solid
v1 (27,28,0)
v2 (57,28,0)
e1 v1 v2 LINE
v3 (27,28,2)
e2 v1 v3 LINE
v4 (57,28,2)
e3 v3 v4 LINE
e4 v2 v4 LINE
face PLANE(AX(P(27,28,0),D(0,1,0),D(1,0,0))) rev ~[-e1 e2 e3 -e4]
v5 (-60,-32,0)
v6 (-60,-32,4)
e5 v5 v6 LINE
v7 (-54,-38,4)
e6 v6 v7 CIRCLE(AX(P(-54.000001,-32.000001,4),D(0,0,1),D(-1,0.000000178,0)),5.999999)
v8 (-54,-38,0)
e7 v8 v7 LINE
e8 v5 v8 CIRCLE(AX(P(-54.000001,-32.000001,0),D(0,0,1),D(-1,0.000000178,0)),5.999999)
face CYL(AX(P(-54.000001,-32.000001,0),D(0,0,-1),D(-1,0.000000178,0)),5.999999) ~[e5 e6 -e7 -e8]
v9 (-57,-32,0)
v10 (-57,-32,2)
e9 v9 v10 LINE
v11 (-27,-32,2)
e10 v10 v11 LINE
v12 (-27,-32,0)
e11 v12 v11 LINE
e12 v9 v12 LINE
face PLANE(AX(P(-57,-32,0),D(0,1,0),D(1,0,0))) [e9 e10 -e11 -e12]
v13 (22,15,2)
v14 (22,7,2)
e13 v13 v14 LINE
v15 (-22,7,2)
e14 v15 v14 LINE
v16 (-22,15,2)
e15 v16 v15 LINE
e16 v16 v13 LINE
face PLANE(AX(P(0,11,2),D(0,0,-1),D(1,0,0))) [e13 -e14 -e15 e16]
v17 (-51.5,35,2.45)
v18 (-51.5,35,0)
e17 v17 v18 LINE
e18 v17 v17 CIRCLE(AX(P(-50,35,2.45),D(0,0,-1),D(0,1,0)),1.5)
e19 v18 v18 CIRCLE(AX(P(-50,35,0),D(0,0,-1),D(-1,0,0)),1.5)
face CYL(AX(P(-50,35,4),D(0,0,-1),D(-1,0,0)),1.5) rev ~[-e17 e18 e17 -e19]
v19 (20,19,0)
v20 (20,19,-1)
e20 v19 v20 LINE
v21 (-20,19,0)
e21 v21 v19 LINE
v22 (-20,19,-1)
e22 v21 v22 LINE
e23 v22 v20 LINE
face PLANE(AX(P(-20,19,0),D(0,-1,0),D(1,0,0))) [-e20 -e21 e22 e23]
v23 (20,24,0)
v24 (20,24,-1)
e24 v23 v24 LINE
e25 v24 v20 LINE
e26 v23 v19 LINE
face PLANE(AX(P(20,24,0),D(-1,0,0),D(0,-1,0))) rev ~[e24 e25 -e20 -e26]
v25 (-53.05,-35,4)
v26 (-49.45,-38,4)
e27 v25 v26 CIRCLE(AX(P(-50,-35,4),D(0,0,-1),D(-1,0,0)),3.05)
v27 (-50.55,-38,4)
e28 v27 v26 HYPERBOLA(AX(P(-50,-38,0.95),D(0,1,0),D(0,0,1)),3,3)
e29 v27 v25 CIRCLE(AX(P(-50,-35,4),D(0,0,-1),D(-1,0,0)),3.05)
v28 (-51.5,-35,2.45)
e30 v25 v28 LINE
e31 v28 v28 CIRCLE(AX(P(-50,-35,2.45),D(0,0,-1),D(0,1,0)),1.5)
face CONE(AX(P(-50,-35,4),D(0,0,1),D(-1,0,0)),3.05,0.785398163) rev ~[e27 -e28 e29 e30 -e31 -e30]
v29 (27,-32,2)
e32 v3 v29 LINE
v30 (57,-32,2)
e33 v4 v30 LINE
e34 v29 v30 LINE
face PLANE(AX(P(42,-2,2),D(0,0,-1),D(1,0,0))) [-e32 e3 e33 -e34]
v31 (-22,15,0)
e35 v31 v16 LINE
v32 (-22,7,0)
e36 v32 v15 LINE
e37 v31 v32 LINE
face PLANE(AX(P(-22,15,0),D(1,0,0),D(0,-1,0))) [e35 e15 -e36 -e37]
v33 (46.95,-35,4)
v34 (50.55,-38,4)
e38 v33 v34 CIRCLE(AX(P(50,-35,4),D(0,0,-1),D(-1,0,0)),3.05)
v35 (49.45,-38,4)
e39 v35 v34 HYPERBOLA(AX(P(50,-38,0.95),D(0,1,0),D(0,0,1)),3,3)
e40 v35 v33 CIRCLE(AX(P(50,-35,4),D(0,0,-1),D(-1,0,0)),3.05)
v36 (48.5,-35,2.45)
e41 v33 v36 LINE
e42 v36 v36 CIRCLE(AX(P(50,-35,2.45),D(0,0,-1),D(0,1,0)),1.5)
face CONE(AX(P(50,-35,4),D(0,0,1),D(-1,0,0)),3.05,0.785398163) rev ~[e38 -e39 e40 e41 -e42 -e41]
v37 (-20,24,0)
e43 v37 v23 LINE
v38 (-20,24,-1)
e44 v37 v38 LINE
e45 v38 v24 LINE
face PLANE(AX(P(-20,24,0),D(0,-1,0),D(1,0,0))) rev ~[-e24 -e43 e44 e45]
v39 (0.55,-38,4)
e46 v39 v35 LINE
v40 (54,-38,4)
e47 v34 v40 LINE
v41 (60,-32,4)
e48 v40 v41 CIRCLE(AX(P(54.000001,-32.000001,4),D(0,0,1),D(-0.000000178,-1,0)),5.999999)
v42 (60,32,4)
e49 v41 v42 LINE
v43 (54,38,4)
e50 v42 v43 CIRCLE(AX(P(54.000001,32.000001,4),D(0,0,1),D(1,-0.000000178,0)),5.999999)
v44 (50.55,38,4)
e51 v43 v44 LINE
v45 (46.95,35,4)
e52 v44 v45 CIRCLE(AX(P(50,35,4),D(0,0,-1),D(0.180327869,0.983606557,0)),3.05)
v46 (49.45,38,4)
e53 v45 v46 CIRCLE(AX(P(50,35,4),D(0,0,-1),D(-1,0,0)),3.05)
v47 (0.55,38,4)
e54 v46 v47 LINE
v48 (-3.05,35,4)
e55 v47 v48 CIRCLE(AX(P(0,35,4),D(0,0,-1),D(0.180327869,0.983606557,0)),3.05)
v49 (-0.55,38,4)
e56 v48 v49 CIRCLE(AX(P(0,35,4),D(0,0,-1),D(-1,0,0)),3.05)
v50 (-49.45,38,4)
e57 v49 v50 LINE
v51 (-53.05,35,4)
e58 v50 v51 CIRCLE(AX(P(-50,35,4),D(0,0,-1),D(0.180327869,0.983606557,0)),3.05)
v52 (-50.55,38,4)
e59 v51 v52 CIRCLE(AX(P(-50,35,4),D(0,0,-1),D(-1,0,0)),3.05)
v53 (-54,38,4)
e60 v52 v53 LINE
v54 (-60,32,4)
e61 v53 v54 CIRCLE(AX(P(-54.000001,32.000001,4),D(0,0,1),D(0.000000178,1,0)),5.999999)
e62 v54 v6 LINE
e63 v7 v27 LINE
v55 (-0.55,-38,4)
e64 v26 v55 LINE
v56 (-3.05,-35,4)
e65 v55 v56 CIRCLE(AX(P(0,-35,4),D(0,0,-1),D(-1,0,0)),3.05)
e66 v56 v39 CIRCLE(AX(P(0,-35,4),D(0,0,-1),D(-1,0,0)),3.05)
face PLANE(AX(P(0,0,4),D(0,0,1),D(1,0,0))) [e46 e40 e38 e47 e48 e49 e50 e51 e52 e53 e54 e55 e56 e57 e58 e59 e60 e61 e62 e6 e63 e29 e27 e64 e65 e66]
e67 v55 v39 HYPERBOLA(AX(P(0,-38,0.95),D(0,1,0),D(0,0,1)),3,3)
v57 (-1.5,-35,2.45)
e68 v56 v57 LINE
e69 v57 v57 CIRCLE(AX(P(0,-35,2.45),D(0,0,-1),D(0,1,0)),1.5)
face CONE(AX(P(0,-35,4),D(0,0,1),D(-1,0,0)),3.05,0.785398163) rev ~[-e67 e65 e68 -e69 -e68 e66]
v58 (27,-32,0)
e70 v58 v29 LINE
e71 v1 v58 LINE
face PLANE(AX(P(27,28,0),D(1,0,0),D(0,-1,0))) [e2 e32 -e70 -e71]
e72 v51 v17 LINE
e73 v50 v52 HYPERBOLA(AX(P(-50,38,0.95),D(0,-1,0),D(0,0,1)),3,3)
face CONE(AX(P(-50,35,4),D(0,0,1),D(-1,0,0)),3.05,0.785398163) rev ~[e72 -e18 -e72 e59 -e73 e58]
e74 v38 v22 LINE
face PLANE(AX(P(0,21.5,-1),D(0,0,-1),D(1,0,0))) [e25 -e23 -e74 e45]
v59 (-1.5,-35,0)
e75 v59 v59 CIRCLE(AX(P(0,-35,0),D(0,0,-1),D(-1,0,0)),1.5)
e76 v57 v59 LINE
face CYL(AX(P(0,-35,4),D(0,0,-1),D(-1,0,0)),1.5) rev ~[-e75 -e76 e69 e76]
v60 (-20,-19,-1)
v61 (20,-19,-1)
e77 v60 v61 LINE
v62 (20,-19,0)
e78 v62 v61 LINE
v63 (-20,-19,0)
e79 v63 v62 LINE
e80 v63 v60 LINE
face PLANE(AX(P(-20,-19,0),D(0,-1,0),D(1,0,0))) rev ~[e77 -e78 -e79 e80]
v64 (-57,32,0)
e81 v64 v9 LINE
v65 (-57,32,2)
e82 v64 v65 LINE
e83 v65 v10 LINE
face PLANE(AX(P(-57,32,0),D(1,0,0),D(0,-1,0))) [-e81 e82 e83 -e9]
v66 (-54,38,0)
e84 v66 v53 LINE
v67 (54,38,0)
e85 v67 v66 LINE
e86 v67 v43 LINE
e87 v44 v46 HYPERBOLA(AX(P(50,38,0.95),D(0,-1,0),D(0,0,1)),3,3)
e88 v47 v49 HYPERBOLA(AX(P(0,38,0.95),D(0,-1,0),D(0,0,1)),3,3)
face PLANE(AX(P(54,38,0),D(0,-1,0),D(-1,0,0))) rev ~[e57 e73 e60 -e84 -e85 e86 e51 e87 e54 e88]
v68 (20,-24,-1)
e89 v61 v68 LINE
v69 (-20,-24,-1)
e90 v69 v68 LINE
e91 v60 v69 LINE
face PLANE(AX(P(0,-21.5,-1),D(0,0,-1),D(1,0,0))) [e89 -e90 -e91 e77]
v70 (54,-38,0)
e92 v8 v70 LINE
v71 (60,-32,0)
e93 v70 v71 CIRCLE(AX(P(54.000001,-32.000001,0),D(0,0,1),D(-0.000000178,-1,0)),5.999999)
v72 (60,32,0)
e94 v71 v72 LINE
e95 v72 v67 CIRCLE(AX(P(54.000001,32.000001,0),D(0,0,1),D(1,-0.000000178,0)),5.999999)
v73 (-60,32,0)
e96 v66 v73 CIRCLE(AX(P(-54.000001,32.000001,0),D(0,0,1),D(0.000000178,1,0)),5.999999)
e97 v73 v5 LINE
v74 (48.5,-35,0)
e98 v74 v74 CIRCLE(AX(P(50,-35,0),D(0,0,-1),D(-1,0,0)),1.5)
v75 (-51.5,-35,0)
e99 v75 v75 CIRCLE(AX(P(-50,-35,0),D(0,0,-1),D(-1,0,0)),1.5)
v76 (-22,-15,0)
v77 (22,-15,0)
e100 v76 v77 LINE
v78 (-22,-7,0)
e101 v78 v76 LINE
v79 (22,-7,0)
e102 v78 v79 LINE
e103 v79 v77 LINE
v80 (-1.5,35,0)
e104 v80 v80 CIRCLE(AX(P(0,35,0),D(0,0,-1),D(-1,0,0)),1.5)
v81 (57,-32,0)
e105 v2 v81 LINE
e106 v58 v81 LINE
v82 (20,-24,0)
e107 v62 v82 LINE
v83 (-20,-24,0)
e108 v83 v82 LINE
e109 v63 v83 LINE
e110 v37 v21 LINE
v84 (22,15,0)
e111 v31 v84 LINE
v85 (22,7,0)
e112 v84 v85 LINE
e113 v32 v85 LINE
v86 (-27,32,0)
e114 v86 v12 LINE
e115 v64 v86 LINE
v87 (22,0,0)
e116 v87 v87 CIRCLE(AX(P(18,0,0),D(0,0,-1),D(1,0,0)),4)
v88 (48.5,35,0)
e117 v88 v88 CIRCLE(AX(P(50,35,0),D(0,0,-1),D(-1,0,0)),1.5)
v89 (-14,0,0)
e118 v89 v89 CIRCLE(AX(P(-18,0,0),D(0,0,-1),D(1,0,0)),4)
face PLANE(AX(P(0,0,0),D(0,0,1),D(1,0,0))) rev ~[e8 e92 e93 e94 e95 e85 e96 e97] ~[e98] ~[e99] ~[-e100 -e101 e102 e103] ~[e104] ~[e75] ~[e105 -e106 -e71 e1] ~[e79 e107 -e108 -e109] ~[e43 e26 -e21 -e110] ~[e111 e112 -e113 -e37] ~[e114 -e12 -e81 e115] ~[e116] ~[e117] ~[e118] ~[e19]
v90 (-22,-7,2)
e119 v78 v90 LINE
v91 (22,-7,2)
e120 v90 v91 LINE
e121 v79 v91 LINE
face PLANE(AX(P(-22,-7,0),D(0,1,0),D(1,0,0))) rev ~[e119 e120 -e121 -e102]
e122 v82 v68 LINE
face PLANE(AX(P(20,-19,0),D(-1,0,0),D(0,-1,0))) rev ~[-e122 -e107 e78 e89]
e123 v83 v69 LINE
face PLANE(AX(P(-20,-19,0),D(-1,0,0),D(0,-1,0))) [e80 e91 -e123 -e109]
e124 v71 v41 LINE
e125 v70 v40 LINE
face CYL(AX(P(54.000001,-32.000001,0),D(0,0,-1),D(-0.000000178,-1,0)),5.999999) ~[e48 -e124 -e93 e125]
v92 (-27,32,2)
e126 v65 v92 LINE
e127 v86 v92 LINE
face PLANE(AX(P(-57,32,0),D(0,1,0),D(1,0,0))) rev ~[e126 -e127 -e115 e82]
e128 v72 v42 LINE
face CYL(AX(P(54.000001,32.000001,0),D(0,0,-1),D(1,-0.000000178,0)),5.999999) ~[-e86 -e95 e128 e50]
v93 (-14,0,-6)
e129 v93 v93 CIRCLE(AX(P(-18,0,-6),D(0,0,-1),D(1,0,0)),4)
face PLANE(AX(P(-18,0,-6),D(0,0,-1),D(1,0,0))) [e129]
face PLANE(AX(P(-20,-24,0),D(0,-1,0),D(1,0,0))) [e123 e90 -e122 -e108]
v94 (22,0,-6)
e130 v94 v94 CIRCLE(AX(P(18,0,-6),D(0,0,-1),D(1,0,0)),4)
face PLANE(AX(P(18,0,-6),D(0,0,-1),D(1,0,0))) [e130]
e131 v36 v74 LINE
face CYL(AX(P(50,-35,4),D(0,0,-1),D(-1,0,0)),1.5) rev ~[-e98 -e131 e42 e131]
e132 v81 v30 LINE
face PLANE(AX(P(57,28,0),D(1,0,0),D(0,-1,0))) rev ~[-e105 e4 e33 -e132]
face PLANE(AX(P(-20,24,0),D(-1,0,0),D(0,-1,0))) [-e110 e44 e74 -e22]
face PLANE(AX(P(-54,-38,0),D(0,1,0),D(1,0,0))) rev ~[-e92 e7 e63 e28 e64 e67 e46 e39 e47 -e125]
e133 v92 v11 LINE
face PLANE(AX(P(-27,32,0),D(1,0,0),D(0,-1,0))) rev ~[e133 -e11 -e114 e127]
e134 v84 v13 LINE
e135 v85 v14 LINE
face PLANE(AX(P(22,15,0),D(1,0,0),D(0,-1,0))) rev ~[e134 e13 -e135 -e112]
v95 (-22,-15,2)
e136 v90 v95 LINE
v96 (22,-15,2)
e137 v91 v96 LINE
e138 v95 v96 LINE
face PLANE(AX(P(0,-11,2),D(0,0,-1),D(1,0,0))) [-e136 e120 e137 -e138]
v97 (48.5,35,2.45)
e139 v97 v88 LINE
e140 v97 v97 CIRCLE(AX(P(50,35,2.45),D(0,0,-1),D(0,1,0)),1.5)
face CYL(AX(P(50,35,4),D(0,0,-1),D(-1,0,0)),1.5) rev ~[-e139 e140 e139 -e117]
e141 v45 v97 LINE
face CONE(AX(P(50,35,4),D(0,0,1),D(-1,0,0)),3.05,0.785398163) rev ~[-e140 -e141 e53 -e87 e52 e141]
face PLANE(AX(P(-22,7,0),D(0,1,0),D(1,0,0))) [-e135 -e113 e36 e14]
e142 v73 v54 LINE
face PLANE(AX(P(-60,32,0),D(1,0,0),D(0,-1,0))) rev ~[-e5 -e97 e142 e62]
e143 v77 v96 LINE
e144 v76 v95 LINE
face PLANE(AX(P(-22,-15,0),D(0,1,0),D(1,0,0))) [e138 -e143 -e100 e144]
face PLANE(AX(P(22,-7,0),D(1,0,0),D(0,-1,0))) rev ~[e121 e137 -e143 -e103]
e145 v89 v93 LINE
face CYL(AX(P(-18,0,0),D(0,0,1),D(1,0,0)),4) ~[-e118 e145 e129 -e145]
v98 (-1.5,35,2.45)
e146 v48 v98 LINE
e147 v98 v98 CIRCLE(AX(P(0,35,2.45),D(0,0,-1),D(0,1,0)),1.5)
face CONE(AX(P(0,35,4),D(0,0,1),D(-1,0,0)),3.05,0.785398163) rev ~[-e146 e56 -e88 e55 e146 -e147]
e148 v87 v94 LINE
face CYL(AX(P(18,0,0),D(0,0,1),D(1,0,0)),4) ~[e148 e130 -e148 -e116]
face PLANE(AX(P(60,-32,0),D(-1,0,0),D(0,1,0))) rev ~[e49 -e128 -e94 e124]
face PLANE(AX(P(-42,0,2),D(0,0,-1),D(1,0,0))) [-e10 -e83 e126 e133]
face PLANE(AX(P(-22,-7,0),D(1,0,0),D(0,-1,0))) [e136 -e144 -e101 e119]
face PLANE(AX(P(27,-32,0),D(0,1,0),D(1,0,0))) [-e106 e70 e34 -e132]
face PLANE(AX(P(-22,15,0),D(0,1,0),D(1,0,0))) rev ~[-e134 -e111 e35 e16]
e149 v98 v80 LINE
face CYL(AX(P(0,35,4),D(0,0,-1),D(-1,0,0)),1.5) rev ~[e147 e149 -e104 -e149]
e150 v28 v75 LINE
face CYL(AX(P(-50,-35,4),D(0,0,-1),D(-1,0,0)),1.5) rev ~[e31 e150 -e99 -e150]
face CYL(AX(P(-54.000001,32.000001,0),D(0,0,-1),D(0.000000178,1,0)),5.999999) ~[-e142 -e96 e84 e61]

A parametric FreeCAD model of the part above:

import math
import FreeCAD as App
import Part
import Sketcher
from FreeCAD import Vector
Q = App.Units.Quantity


def add_polygon(sketch, points):
    """Adds a closed chain of lines whose ends are joined by coincident constraints."""
    first, n = sketch.GeometryCount, len(points)
    for a, b in zip(points, points[1:] + points[:1]):
        sketch.addGeometry(Part.LineSegment(App.Vector(*a, 0), App.Vector(*b, 0)), False)
    for i in range(n):
        sketch.addConstraint(Sketcher.Constraint("Coincident", first + i, 2, first + (i + 1) % n, 1))

doc = App.newDocument("Part")
body = doc.addObject("PartDesign::Body", "Body")

# Sketch on XY plane
sketch1 = body.newObject("Sketcher::SketchObject", "Sketch")
sketch1.AttachmentSupport = (doc.getObject("XY_Plane"), [""])
sketch1.MapMode = "FlatFace"
sketch1.addGeometry([
    Part.LineSegment(Vector(60, -32, 0), Vector(60, 32, 0)),  # 0
    Part.ArcOfCircle(Part.Circle(Vector(54, 32, 0), Vector(0, 0, 1), 6), math.radians(0), math.radians(90)),  # 1
    Part.LineSegment(Vector(54, 38, 0), Vector(-54, 38, 0)),  # 2
    Part.ArcOfCircle(Part.Circle(Vector(-54, 32, 0), Vector(0, 0, 1), 6), math.radians(90), math.radians(180)),  # 3
    Part.LineSegment(Vector(-60, 32, 0), Vector(-60, -32, 0)),  # 4
    Part.ArcOfCircle(Part.Circle(Vector(-54, -32, 0), Vector(0, 0, 1), 6), math.radians(180), math.radians(270)),  # 5
    Part.LineSegment(Vector(-54, -38, 0), Vector(54, -38, 0)),  # 6
    Part.ArcOfCircle(Part.Circle(Vector(54, -32, 0), Vector(0, 0, 1), 6), math.radians(-90), math.radians(0)),  # 7
], False)
sketch1.addConstraint([
    Sketcher.Constraint("Tangent", 0, 2, 1, 1),
    Sketcher.Constraint("Tangent", 1, 2, 2, 1),
    Sketcher.Constraint("Tangent", 2, 2, 3, 1),
    Sketcher.Constraint("Tangent", 3, 2, 4, 1),
    Sketcher.Constraint("Tangent", 4, 2, 5, 1),
    Sketcher.Constraint("Tangent", 5, 2, 6, 1),
    Sketcher.Constraint("Tangent", 6, 2, 7, 1),
    Sketcher.Constraint("Tangent", 7, 2, 0, 1),
    Sketcher.Constraint("Vertical", 0),
    Sketcher.Constraint("Horizontal", 2),
    Sketcher.Constraint("Vertical", 4),
    Sketcher.Constraint("Horizontal", 6),
    Sketcher.Constraint("Equal", 1, 3),
    Sketcher.Constraint("Equal", 3, 5),
    Sketcher.Constraint("Equal", 5, 7),
    Sketcher.Constraint("Symmetric", 1, 3, 5, 3, -1, 1),
    Sketcher.Constraint("Radius", 1, Q("5.999999 mm")),
    Sketcher.Constraint("DistanceX", 2, 2, 2, 1, Q("108 mm")),
    Sketcher.Constraint("DistanceY", 0, 1, 0, 2, Q("64 mm")),
])
pad1 = body.newObject("PartDesign::Pad", "Pad")
pad1.Profile = sketch1
pad1.Length = 4

# Sketch on XY plane
sketch2 = body.newObject("Sketcher::SketchObject", "Sketch001")
sketch2.AttachmentSupport = (doc.getObject("XY_Plane"), [""])
sketch2.MapMode = "FlatFace"
sketch2.AttachmentOffset = App.Placement(Vector(0, 0, 4), App.Rotation())
sketch2.addGeometry([
    Part.Circle(Vector(0, -35, 0), Vector(0, 0, 1), 1.5),  # 0
    Part.Circle(Vector(0, 35, 0), Vector(0, 0, 1), 1.5),  # 1
    Part.Circle(Vector(50, 35, 0), Vector(0, 0, 1), 1.5),  # 2
    Part.Circle(Vector(-50, 35, 0), Vector(0, 0, 1), 1.5),  # 3
    Part.Circle(Vector(-50, -35, 0), Vector(0, 0, 1), 1.5),  # 4
    Part.Circle(Vector(50, -35, 0), Vector(0, 0, 1), 1.5),  # 5
], False)
sketch2.addConstraint([
    Sketcher.Constraint("Equal", 0, 1),
    Sketcher.Constraint("Equal", 1, 2),
    Sketcher.Constraint("Equal", 2, 3),
    Sketcher.Constraint("Equal", 3, 4),
    Sketcher.Constraint("Equal", 4, 5),
    Sketcher.Constraint("Symmetric", 0, 3, 1, 3, -1, 1),
    Sketcher.Constraint("Symmetric", 2, 3, 4, 3, -1, 1),
    Sketcher.Constraint("Symmetric", 3, 3, 5, 3, -1, 1),
    Sketcher.Constraint("Symmetric", 2, 3, 3, 3, -2),
    Sketcher.Constraint("PointOnObject", 0, 3, -2),
    Sketcher.Constraint("Horizontal", 1, 3, 2, 3),
    Sketcher.Constraint("Diameter", 0, Q("3 mm")),
    Sketcher.Constraint("DistanceY", 0, 3, -1, 1, Q("35 mm")),
    Sketcher.Constraint("DistanceX", -1, 1, 2, 3, Q("50 mm")),
])
doc.recompute()
hole = body.newObject("PartDesign::Hole", "Hole")
hole.Profile = sketch2
hole.ThreadType = "None"
hole.Diameter = 3
hole.DepthType = "Dimension"
hole.Depth = 25
hole.DrillPoint = "Flat"
hole.HoleCutType = "Countersink"
hole.HoleCutDiameter = 6.1
hole.HoleCutCountersinkAngle = 90

# Sketch on XY plane
sketch3 = body.newObject("Sketcher::SketchObject", "Sketch002")
sketch3.AttachmentSupport = (doc.getObject("XY_Plane"), [""])
sketch3.MapMode = "FlatFace"
sketch3.addGeometry([
    Part.Circle(Vector(18, 0, 0), Vector(0, 0, 1), 4),
    Part.Circle(Vector(-18, 0, 0), Vector(0, 0, 1), 4),
], False)
sketch3.addConstraint([
    Sketcher.Constraint("Equal", 0, 1),
    Sketcher.Constraint("Symmetric", 0, 3, 1, 3, -1, 1),
    Sketcher.Constraint("PointOnObject", 0, 3, -1),
    Sketcher.Constraint("Diameter", 0, Q("8 mm")),
    Sketcher.Constraint("DistanceX", -1, 1, 0, 3, Q("18 mm")),
])
pad2 = body.newObject("PartDesign::Pad", "Pad001")
pad2.Profile = sketch3
pad2.Length = 6
pad2.Reversed = True

# Sketch on XY plane
sketch4 = body.newObject("Sketcher::SketchObject", "Sketch003")
sketch4.AttachmentSupport = (doc.getObject("XY_Plane"), [""])
sketch4.MapMode = "FlatFace"
add_polygon(sketch4, [(-20, -24), (-20, -19), (20, -19), (20, -24)])  # lines 0-3
add_polygon(sketch4, [(-20, 19), (-20, 24), (20, 24), (20, 19)])  # lines 4-7
sketch4.addConstraint([
    Sketcher.Constraint("Vertical", 0),
    Sketcher.Constraint("Horizontal", 1),
    Sketcher.Constraint("Vertical", 2),
    Sketcher.Constraint("Horizontal", 3),
    Sketcher.Constraint("Vertical", 4),
    Sketcher.Constraint("Horizontal", 5),
    Sketcher.Constraint("Vertical", 6),
    Sketcher.Constraint("Horizontal", 7),
    Sketcher.Constraint("Symmetric", 2, 2, 4, 2, -1, 1),
    Sketcher.Constraint("Symmetric", 0, 2, 6, 2, -1, 1),
    Sketcher.Constraint("Vertical", 3, 2, 4, 2),
    Sketcher.Constraint("DistanceX", 1, 1, 1, 2, Q("40 mm")),
    Sketcher.Constraint("DistanceY", 0, 1, 0, 2, Q("5 mm")),
    Sketcher.Constraint("DistanceY", 0, 2, -1, 1, Q("19 mm")),
])
pad3 = body.newObject("PartDesign::Pad", "Pad002")
pad3.Profile = sketch4
pad3.Length = 1
pad3.Reversed = True

# Sketch on XY plane
sketch5 = body.newObject("Sketcher::SketchObject", "Sketch004")
sketch5.AttachmentSupport = (doc.getObject("XY_Plane"), [""])
sketch5.MapMode = "FlatFace"
add_polygon(sketch5, [(-57, -32), (-57, 32), (-27, 32), (-27, -32)])  # lines 0-3
add_polygon(sketch5, [(27, -32), (27, 28), (57, 28), (57, -32)])  # lines 4-7
add_polygon(sketch5, [(-22, -15), (-22, -7), (22, -7), (22, -15)])  # lines 8-11
add_polygon(sketch5, [(-22, 7), (-22, 15), (22, 15), (22, 7)])  # lines 12-15
sketch5.addConstraint([
    Sketcher.Constraint("Vertical", 0),
    Sketcher.Constraint("Horizontal", 1),
    Sketcher.Constraint("Vertical", 2),
    Sketcher.Constraint("Horizontal", 3),
    Sketcher.Constraint("Vertical", 4),
    Sketcher.Constraint("Horizontal", 5),
    Sketcher.Constraint("Vertical", 6),
    Sketcher.Constraint("Horizontal", 7),
    Sketcher.Constraint("Vertical", 8),
    Sketcher.Constraint("Horizontal", 9),
    Sketcher.Constraint("Vertical", 10),
    Sketcher.Constraint("Horizontal", 11),
    Sketcher.Constraint("Vertical", 12),
    Sketcher.Constraint("Horizontal", 13),
    Sketcher.Constraint("Vertical", 14),
    Sketcher.Constraint("Horizontal", 15),
    Sketcher.Constraint("Symmetric", 0, 2, 6, 2, -1, 1),
    Sketcher.Constraint("Symmetric", 10, 2, 12, 2, -1, 1),
    Sketcher.Constraint("Symmetric", 8, 2, 14, 2, -1, 1),
    Sketcher.Constraint("Symmetric", 2, 2, 7, 2, -2),
    Sketcher.Constraint("Vertical", 11, 2, 12, 2),
    Sketcher.Constraint("DistanceX", 1, 1, 1, 2, Q("30 mm")),
    Sketcher.Constraint("DistanceX", 9, 1, 9, 2, Q("44 mm")),
    Sketcher.Constraint("DistanceY", 0, 1, 0, 2, Q("64 mm")),
    Sketcher.Constraint("DistanceY", 4, 1, 4, 2, Q("60 mm")),
    Sketcher.Constraint("DistanceY", 8, 1, 8, 2, Q("8 mm")),
    Sketcher.Constraint("DistanceX", 0, 2, -1, 1, Q("57 mm")),
    Sketcher.Constraint("DistanceY", 8, 2, -1, 1, Q("7 mm")),
])
pocket1 = body.newObject("PartDesign::Pocket", "Pocket")
pocket1.Profile = sketch5
pocket1.Length = 2
pocket1.Reversed = True

doc.recompute()
